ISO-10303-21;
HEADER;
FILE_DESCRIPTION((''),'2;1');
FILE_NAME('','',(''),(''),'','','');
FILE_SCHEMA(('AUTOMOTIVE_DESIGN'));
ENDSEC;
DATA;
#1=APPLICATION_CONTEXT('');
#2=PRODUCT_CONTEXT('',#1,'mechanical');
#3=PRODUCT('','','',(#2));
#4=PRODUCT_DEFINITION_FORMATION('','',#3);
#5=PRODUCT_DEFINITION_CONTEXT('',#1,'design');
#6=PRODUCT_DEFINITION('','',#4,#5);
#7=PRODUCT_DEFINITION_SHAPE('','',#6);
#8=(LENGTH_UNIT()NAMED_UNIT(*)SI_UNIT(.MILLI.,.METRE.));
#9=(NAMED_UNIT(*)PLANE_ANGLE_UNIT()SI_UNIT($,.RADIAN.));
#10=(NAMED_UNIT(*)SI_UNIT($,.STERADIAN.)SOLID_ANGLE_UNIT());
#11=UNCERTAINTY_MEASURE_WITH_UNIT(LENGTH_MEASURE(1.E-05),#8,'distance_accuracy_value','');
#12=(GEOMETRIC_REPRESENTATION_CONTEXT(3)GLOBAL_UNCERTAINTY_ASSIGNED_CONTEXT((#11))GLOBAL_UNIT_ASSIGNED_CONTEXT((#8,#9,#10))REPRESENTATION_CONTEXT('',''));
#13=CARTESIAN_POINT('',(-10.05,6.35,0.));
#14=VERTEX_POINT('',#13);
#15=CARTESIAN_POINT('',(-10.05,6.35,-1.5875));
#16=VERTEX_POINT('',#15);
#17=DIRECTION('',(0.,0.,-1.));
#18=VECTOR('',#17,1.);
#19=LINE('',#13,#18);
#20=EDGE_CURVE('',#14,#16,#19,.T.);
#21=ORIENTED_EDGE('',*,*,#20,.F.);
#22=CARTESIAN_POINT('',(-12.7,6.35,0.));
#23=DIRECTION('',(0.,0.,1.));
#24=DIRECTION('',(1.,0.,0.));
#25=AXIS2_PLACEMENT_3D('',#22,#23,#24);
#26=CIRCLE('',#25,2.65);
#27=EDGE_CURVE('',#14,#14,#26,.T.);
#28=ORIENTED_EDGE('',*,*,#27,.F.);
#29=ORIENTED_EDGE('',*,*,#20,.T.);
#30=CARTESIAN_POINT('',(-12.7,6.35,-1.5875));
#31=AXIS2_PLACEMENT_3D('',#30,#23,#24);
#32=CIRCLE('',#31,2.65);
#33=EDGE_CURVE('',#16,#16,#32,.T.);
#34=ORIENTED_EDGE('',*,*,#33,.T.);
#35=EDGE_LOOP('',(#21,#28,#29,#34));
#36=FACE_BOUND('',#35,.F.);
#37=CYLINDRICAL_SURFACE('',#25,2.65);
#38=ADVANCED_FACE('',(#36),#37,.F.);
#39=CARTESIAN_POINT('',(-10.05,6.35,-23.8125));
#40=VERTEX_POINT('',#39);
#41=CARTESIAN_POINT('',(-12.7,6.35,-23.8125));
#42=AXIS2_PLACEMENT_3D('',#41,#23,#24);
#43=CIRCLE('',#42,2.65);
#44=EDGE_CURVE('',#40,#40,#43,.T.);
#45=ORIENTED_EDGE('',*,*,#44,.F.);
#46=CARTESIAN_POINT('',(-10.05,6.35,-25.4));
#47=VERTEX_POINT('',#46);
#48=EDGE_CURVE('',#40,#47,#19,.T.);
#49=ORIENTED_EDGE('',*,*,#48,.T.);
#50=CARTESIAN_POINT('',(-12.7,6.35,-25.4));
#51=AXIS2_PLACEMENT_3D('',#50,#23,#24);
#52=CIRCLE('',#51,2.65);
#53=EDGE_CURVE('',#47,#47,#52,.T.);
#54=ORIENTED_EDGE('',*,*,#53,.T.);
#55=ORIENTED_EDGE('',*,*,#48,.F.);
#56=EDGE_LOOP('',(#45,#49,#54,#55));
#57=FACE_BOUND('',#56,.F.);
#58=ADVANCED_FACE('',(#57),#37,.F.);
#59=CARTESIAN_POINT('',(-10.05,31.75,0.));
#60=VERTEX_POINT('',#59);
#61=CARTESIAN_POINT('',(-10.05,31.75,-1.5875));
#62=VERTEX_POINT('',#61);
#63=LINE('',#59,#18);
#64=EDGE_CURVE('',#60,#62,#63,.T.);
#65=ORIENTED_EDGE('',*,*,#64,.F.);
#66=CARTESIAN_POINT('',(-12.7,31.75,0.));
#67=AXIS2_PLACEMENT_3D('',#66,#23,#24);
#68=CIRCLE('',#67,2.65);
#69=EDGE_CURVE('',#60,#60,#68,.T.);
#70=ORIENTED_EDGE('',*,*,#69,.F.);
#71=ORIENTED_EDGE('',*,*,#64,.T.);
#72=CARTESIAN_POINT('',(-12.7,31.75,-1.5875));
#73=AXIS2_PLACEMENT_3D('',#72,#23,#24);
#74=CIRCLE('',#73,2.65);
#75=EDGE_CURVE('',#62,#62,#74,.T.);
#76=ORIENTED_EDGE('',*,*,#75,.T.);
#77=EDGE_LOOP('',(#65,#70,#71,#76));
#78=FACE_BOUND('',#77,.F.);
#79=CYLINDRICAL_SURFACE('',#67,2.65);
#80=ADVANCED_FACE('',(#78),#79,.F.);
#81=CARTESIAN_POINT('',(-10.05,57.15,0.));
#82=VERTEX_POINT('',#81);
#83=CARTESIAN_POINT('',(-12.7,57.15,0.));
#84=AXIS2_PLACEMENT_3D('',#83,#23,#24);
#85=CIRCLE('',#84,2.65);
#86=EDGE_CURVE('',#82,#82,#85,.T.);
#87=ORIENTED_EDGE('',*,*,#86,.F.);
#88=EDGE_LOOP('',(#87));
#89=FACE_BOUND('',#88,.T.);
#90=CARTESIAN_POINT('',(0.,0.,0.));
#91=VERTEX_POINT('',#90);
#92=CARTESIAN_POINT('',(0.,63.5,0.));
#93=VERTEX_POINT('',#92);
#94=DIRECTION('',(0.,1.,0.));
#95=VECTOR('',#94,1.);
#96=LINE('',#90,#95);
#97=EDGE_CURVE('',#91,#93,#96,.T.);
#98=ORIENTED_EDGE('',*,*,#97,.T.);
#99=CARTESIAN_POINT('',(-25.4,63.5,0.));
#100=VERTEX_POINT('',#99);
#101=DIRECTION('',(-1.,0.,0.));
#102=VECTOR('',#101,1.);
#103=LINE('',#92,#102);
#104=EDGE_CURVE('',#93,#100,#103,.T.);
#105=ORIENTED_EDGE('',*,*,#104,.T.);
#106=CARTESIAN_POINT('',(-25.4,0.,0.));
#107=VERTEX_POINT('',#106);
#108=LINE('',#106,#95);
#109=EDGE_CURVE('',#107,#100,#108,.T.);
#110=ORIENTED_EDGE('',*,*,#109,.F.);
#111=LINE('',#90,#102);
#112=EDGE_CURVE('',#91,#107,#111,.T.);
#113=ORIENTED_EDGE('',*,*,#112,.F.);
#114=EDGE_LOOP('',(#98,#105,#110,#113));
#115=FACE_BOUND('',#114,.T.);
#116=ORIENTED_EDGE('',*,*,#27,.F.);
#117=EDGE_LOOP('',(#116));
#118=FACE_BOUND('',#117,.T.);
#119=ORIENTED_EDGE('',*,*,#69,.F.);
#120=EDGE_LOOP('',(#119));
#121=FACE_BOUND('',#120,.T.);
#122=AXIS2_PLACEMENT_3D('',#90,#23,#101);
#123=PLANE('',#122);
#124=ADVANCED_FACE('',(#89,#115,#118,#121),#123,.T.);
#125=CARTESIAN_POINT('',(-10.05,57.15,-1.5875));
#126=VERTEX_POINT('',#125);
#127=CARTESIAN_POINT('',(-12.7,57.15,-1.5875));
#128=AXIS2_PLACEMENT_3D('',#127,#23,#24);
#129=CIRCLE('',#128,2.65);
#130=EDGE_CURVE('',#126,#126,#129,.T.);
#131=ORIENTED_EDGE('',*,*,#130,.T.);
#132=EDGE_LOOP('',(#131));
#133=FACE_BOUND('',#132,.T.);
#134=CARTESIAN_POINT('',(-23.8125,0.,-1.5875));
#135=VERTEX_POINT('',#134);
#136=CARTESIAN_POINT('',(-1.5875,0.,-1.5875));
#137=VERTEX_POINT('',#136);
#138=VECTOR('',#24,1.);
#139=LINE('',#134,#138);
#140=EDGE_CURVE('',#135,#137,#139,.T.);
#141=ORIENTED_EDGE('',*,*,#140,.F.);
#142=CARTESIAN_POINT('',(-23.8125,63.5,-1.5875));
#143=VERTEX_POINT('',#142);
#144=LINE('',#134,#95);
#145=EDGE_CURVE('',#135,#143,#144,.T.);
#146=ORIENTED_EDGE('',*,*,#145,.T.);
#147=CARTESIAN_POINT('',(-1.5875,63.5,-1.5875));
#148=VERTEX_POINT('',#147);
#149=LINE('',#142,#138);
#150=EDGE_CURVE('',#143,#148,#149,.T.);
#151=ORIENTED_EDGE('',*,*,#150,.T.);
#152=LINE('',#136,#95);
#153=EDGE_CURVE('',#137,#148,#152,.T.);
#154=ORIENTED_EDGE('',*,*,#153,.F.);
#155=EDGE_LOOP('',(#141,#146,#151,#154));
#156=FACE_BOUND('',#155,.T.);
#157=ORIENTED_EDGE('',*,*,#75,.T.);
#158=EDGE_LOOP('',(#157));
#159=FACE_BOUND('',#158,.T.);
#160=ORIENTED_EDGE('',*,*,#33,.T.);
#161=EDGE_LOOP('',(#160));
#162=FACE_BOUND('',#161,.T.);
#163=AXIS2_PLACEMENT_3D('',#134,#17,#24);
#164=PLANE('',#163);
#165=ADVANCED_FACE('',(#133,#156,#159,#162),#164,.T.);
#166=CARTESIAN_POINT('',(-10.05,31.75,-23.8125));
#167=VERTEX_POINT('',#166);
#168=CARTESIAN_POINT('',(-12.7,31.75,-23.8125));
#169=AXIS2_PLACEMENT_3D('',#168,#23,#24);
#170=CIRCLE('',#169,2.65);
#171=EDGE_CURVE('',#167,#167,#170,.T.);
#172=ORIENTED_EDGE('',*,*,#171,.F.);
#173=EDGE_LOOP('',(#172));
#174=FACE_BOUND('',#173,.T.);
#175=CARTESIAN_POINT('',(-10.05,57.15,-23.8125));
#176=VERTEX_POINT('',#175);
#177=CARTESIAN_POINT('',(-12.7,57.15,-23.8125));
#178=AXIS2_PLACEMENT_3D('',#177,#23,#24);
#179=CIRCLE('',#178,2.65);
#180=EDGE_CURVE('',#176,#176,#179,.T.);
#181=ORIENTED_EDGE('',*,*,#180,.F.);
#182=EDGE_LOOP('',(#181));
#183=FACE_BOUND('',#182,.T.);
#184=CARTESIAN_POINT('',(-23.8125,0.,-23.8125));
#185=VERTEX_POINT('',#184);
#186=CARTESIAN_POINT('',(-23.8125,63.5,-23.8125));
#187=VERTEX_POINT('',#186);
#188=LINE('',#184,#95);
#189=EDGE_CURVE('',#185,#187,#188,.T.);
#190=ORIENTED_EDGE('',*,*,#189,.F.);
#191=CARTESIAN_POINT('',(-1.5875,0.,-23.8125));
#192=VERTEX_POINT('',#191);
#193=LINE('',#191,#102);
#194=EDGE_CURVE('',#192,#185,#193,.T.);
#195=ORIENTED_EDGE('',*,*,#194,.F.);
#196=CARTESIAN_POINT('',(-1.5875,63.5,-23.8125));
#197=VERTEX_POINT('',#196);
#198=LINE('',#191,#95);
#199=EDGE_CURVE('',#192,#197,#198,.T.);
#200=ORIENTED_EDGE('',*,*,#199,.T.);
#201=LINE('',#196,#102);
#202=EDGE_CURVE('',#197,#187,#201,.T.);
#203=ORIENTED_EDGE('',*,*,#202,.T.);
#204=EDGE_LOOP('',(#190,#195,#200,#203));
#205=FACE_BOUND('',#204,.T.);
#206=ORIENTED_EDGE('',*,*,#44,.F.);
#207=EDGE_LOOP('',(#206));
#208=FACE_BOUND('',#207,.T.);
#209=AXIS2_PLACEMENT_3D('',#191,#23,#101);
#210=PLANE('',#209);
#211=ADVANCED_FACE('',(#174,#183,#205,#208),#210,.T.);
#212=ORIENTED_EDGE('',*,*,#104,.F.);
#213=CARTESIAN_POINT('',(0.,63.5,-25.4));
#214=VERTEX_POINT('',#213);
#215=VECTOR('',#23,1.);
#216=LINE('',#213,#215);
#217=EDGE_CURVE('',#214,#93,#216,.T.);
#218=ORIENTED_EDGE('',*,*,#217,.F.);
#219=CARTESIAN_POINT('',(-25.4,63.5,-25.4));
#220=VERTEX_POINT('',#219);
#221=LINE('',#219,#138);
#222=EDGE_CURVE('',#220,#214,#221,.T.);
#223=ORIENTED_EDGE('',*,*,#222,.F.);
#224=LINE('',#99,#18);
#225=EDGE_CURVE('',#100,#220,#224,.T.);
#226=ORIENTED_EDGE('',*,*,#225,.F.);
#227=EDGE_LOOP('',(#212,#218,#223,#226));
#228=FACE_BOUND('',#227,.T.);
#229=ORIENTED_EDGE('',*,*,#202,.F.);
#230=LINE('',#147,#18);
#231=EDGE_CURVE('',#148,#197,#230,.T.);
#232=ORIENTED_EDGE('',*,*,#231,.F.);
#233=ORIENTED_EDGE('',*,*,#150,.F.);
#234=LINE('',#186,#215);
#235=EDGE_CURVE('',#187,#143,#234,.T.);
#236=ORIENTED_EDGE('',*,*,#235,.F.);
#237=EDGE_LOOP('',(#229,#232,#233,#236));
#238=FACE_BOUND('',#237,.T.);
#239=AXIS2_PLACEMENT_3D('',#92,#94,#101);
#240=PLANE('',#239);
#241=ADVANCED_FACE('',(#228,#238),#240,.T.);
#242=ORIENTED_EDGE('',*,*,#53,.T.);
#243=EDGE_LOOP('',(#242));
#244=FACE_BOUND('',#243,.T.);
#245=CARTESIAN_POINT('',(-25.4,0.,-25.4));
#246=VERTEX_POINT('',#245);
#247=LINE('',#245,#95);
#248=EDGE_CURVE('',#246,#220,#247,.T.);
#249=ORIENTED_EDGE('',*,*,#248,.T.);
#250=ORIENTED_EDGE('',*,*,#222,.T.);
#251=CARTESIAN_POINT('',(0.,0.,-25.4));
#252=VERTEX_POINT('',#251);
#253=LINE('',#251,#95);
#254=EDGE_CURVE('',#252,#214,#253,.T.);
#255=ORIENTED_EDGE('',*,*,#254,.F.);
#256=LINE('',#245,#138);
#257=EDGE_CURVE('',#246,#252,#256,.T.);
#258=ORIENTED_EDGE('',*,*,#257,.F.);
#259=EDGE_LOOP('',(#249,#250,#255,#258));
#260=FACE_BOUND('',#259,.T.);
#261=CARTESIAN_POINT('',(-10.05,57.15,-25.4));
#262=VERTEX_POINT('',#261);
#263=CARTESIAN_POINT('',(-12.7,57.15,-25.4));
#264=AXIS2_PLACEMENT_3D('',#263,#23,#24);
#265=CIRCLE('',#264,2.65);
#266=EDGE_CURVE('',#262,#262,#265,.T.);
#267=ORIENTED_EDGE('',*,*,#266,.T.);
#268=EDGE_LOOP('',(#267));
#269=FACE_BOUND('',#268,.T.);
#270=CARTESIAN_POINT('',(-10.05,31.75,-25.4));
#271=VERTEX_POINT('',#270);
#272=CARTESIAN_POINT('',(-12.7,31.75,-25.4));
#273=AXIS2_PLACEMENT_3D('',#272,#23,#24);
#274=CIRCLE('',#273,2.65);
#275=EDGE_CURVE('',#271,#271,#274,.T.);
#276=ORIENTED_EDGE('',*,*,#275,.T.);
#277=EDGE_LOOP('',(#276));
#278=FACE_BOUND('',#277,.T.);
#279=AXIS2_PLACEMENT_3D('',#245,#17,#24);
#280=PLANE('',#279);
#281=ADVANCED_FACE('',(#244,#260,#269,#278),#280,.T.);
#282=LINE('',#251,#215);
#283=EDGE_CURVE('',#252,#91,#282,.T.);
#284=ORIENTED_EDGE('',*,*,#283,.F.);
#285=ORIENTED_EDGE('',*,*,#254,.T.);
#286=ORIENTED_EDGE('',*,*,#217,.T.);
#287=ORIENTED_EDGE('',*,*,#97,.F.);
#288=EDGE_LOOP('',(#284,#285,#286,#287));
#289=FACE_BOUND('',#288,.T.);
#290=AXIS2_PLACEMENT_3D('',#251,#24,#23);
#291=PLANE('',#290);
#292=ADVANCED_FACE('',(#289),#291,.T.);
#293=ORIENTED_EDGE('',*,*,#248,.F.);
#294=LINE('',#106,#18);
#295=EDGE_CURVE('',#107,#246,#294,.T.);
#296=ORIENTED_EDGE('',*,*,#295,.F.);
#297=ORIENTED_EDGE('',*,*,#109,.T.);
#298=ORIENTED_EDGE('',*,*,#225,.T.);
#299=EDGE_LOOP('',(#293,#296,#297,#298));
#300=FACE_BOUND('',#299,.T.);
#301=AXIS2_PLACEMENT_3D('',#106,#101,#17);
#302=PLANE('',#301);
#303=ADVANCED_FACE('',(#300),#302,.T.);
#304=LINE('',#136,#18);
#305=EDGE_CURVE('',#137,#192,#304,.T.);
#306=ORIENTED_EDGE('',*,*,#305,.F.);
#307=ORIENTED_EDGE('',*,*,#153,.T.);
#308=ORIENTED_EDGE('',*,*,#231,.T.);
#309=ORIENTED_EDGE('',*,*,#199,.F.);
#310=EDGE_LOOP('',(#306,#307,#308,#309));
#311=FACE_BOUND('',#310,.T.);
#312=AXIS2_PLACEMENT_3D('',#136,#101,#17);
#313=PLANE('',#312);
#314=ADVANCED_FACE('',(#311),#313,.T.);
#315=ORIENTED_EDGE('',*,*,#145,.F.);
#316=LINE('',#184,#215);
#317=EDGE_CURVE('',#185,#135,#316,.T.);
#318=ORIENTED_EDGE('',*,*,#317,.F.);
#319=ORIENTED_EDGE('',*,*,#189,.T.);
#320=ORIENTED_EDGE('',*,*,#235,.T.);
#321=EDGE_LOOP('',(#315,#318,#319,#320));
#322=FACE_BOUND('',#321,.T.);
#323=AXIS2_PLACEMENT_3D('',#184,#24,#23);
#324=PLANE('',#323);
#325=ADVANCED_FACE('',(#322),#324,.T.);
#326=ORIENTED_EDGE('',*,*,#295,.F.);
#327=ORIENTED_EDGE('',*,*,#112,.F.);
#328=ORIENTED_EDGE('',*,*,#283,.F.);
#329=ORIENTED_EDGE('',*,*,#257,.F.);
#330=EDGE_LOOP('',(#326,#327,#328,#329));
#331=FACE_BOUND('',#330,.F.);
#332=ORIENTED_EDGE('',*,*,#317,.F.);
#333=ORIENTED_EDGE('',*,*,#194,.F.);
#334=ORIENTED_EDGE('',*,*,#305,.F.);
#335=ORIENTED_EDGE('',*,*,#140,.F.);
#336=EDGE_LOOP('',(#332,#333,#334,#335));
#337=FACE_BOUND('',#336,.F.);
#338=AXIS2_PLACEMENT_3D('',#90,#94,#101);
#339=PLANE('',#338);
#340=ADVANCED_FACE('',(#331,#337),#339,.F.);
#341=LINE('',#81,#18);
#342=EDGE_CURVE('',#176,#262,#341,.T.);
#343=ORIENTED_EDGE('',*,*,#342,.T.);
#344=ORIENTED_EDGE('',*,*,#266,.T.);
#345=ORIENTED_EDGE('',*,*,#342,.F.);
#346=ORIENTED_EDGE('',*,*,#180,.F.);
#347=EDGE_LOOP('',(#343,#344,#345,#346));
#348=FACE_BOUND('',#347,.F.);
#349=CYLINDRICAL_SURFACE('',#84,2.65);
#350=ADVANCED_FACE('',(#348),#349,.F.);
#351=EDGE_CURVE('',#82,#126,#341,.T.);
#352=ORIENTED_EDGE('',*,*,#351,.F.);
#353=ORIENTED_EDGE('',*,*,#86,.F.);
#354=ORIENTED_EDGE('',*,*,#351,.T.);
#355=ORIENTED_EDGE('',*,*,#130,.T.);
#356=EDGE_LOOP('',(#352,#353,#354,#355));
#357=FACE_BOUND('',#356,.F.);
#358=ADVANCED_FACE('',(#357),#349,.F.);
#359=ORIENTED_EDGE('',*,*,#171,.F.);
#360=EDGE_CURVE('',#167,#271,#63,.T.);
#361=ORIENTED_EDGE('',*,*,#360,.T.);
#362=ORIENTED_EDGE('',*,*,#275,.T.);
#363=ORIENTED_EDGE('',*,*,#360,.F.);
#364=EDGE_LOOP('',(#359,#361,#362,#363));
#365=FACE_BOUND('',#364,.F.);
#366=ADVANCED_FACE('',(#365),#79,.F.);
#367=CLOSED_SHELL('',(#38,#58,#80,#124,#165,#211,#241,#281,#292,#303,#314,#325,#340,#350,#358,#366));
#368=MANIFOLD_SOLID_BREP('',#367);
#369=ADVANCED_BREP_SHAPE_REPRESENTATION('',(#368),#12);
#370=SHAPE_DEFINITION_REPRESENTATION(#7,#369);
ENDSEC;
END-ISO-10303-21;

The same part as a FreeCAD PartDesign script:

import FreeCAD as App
import Part
import Sketcher

V = App.Vector
Q = App.Units.Quantity


def add_polygon(sketch, points):
    """Adds a closed chain of lines whose ends are joined by coincident constraints."""
    first, n = sketch.GeometryCount, len(points)
    for a, b in zip(points, points[1:] + points[:1]):
        sketch.addGeometry(Part.LineSegment(App.Vector(*a, 0), App.Vector(*b, 0)), False)
    for i in range(n):
        sketch.addConstraint(Sketcher.Constraint("Coincident", first + i, 2, first + (i + 1) % n, 1))

doc = App.newDocument("Part")
body = doc.addObject("PartDesign::Body", "Body")

sketch1 = body.newObject("Sketcher::SketchObject", "Sketch")
sketch1.AttachmentSupport = (doc.getObject("XZ_Plane"), [""])
sketch1.MapMode = "FlatFace"
add_polygon(sketch1, [(-25, 0), (0, 0), (0, -25), (-25, -25)])
add_polygon(sketch1, [(-2, -2), (-24, -2), (-24, -24), (-2, -24)])
sketch1.addConstraint([
    Sketcher.Constraint("Horizontal", 0),
    Sketcher.Constraint("Vertical", 1),
    Sketcher.Constraint("Horizontal", 2),
    Sketcher.Constraint("Vertical", 3),
    Sketcher.Constraint("Horizontal", 4),
    Sketcher.Constraint("Vertical", 5),
    Sketcher.Constraint("Horizontal", 6),
    Sketcher.Constraint("Vertical", 7),
    Sketcher.Constraint("Coincident", 0, 2, -1, 1),
    Sketcher.Constraint("Equal", 2, 1),
    Sketcher.Constraint("Equal", 6, 5),
    Sketcher.Constraint("DistanceX", 0, 1, 0, 2, Q("1 in")),
    Sketcher.Constraint("DistanceY", 4, 2, -1, 1, Q("0.0625 in")),
    Sketcher.Constraint("DistanceX", 6, 2, -1, 1, Q("0.0625 in")),
    Sketcher.Constraint("DistanceX", 3, 2, 4, 2, Q("0.0625 in")),
])
pad1 = body.newObject("PartDesign::Pad", "Pad")
pad1.Profile = sketch1
pad1.Length = Q("2.5 in")
pad1.Reversed = True

sketch2 = body.newObject("Sketcher::SketchObject", "Sketch001")
sketch2.AttachmentSupport = (doc.getObject("XY_Plane"), [""])
sketch2.MapMode = "FlatFace"
sketch2.addGeometry([
    Part.Circle(V(-12.7, 31.8, 0), V(0, 0, 1), 2.6),
    Part.Circle(V(-12.7, 57.1, 0), V(0, 0, 1), 2.6),
    Part.Circle(V(-12.7, 6.3, 0), V(0, 0, 1), 2.6),
], False)
sketch2.addConstraint([
    Sketcher.Constraint("Equal", 0, 1),
    Sketcher.Constraint("Equal", 1, 2),
    Sketcher.Constraint("Vertical", 0, 3, 1, 3),
    Sketcher.Constraint("Vertical", 1, 3, 2, 3),
    Sketcher.Constraint("DistanceY", 0, 3, 1, 3, Q("1 in")),
    Sketcher.Constraint("DistanceY", 2, 3, 0, 3, Q("1 in")),
    Sketcher.Constraint("Diameter", 0, 5.3),
    Sketcher.Constraint("DistanceX", 0, 3, -1, 1, Q("0.5 in")),
    Sketcher.Constraint("DistanceY", -1, 1, 0, 3, Q("1.25 in")),
])
pocket1 = body.newObject("PartDesign::Pocket", "Pocket")
pocket1.Profile = sketch2
pocket1.Type = "ThroughAll"

doc.recompute()
